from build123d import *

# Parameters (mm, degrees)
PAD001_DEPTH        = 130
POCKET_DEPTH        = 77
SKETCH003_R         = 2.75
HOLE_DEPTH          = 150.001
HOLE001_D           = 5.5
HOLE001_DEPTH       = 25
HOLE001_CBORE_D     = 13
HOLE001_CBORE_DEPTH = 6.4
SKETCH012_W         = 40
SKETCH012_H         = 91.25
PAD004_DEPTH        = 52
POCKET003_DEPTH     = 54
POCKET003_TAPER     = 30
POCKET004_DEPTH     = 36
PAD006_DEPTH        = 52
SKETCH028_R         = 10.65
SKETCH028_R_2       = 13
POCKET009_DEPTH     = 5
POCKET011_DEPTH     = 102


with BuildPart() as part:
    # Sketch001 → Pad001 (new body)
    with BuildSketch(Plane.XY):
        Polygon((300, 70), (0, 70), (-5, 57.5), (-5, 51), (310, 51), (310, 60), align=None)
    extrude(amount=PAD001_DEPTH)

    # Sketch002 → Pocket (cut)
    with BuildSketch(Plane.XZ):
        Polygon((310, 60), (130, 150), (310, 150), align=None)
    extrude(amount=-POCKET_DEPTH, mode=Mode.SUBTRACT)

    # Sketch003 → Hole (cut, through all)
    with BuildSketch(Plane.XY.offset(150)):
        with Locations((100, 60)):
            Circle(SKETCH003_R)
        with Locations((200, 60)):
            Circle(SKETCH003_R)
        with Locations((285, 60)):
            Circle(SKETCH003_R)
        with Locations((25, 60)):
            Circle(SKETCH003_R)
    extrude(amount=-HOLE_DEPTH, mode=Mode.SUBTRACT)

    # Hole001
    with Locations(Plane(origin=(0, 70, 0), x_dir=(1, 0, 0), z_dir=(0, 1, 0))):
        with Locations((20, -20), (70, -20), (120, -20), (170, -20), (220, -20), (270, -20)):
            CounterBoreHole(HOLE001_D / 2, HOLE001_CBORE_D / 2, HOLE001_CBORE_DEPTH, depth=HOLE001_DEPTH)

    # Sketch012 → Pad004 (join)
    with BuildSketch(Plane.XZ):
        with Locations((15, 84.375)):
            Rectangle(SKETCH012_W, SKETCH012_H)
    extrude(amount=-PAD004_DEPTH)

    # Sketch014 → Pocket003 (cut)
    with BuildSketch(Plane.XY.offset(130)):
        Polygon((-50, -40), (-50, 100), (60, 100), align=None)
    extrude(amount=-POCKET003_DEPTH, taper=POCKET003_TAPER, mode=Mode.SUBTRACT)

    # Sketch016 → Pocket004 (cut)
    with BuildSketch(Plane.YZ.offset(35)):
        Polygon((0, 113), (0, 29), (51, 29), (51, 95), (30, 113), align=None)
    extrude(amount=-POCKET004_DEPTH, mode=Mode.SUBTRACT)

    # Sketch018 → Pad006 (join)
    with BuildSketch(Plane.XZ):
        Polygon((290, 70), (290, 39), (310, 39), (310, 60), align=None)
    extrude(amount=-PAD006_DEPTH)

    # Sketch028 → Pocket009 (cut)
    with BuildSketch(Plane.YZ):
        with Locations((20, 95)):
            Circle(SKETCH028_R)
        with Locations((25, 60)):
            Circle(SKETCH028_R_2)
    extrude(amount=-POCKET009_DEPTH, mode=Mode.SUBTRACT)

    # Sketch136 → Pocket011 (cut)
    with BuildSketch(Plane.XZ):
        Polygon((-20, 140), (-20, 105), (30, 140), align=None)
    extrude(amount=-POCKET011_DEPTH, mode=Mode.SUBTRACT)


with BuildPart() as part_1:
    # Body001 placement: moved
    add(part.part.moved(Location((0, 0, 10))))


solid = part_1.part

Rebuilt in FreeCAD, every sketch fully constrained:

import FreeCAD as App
import Part
import Sketcher
Q = App.Units.Quantity


def add_polygon(sketch, points):
    """Adds a closed chain of lines whose ends are joined by coincident constraints."""
    first, n = sketch.GeometryCount, len(points)
    for a, b in zip(points, points[1:] + points[:1]):
        sketch.addGeometry(Part.LineSegment(App.Vector(*a, 0), App.Vector(*b, 0)), False)
    for i in range(n):
        sketch.addConstraint(Sketcher.Constraint("Coincident", first + i, 2, first + (i + 1) % n, 1))

doc = App.newDocument("Part")
params = doc.addObject("Spreadsheet::Sheet", "Params")
for row, (alias, value) in enumerate([
    ("sketch1_width", "300 mm"),
    ("sketch1_width2", "315 mm"),
    ("sketch1_height", "9 mm"),
    ("sketch1_height2", "6.5 mm"),
    ("pad1_length", "130 mm"),
    ("sketch2_width", "180 mm"),
    ("sketch2_height", "90 mm"),
    ("pocket1_length", "77 mm"),
    ("sketch3_diameter", "5.5 mm"),
    ("sketch4_diameter", "5.5 mm"),
    ("hole_diameter", "5.5 mm"),
    ("hole_depth", "25 mm"),
    ("hole_cbore_diameter", "13 mm"),
    ("hole_cbore_depth", "6.4 mm"),
    ("sketch5_width", "40 mm"),
    ("sketch5_height", "91.25 mm"),
    ("pad2_length", "52 mm"),
    ("sketch6_width", "110 mm"),
    ("sketch6_height", "140 mm"),
    ("pocket3_length", "54 mm"),
    ("pocket3_taper", "-30 deg"),
    ("sketch7_width", "51 mm"),
    ("sketch7_width2", "30 mm"),
    ("sketch7_height", "84 mm"),
    ("sketch7_height2", "66 mm"),
    ("pocket4_length", "36 mm"),
    ("sketch8_width", "20 mm"),
    ("sketch8_height", "31 mm"),
    ("sketch8_height2", "21 mm"),
    ("pad3_length", "52 mm"),
    ("sketch9_diameter", "26 mm"),
    ("sketch9_diameter2", "21.3 mm"),
    ("pocket5_length", "5 mm"),
    ("sketch10_width", "50 mm"),
    ("sketch10_height", "35 mm"),
    ("pocket6_length", "102 mm"),
], start=1):
    params.set(f"A{row}", alias)
    params.set(f"B{row}", "=" + value)
    params.setAlias(f"B{row}", alias)

body = doc.addObject("PartDesign::Body", "Body")

# Sketch on XY plane
sketch1 = body.newObject("Sketcher::SketchObject", "Sketch")
sketch1.AttachmentSupport = (doc.getObject("XY_Plane"), [""])
sketch1.MapMode = "FlatFace"
add_polygon(sketch1, [(300, 70), (0, 70), (-5, 58), (-5, 51), (310, 51), (310, 60)])  # lines 0-5
sketch1.addConstraint([
    Sketcher.Constraint("Horizontal", 0),
    Sketcher.Constraint("Vertical", 2),
    Sketcher.Constraint("Horizontal", 3),
    Sketcher.Constraint("Vertical", 4),
    Sketcher.Constraint("PointOnObject", 0, 2, -2),
    Sketcher.Constraint("DistanceX", 0, 2, 0, 1, Q("300 mm")),
    Sketcher.Constraint("DistanceX", 3, 1, 3, 2, Q("315 mm")),
    Sketcher.Constraint("DistanceY", 4, 1, 4, 2, Q("9 mm")),
    Sketcher.Constraint("Angle", 5, Q("135 deg")),
    Sketcher.Constraint("DistanceY", 2, 2, 2, 1, Q("6.5 mm")),
    Sketcher.Constraint("DistanceY", -1, 1, 0, 2, Q("70 mm")),
    Sketcher.Constraint("DistanceX", 1, 2, -1, 1, Q("5 mm")),
])
sketch1.setExpression("Constraints[11]", "Params.sketch1_width")
sketch1.setExpression("Constraints[12]", "Params.sketch1_width2")
sketch1.setExpression("Constraints[13]", "Params.sketch1_height")
sketch1.setExpression("Constraints[15]", "Params.sketch1_height2")
pad1 = body.newObject("PartDesign::Pad", "Pad")
pad1.Profile = sketch1
pad1.setExpression("Length", "Params.pad1_length")

# Sketch on XZ plane
sketch2 = body.newObject("Sketcher::SketchObject", "Sketch001")
sketch2.AttachmentSupport = (doc.getObject("XZ_Plane"), [""])
sketch2.MapMode = "FlatFace"
add_polygon(sketch2, [(130, 150), (310, 60), (310, 150)])  # lines 0-2
sketch2.addConstraint([
    Sketcher.Constraint("Vertical", 1),
    Sketcher.Constraint("Horizontal", 2),
    Sketcher.Constraint("DistanceX", 2, 2, 2, 1, Q("180 mm")),
    Sketcher.Constraint("DistanceY", 1, 1, 1, 2, Q("90 mm")),
    Sketcher.Constraint("DistanceX", -1, 1, 0, 2, Q("310 mm")),
    Sketcher.Constraint("DistanceY", -1, 1, 0, 2, Q("60 mm")),
])
sketch2.setExpression("Constraints[5]", "Params.sketch2_width")
sketch2.setExpression("Constraints[6]", "Params.sketch2_height")
pocket1 = body.newObject("PartDesign::Pocket", "Pocket")
pocket1.Profile = sketch2
pocket1.setExpression("Length", "Params.pocket1_length")

# Sketch on XY plane
sketch3 = body.newObject("Sketcher::SketchObject", "Sketch002")
sketch3.AttachmentSupport = (doc.getObject("XY_Plane"), [""])
sketch3.MapMode = "FlatFace"
sketch3.AttachmentOffset = App.Placement(App.Vector(0, 0, 150), App.Rotation())
sketch3.addGeometry([
    Part.Circle(App.Vector(100, 60, 0), App.Vector(0, 0, 1), 2.8),
    Part.Circle(App.Vector(200, 60, 0), App.Vector(0, 0, 1), 2.8),
    Part.Circle(App.Vector(285, 60, 0), App.Vector(0, 0, 1), 2.8),
    Part.Circle(App.Vector(25, 60, 0), App.Vector(0, 0, 1), 2.8),
], False)
sketch3.addConstraint([
    Sketcher.Constraint("Equal", 0, 1),
    Sketcher.Constraint("Equal", 1, 2),
    Sketcher.Constraint("Equal", 2, 3),
    Sketcher.Constraint("Horizontal", 0, 3, 1, 3),
    Sketcher.Constraint("Horizontal", 1, 3, 2, 3),
    Sketcher.Constraint("Horizontal", 2, 3, 3, 3),
    Sketcher.Constraint("Diameter", 0, Q("5.5 mm")),
    Sketcher.Constraint("DistanceX", -1, 1, 0, 3, Q("100 mm")),
    Sketcher.Constraint("DistanceY", -1, 1, 0, 3, Q("60 mm")),
    Sketcher.Constraint("DistanceX", -1, 1, 1, 3, Q("200 mm")),
    Sketcher.Constraint("DistanceX", -1, 1, 2, 3, Q("285 mm")),
    Sketcher.Constraint("DistanceX", -1, 1, 3, 3, Q("25 mm")),
])
sketch3.setExpression("Constraints[6]", "Params.sketch3_diameter")
pocket2 = body.newObject("PartDesign::Pocket", "Pocket001")
pocket2.Profile = sketch3
pocket2.Type = "ThroughAll"

# Sketch on XZ plane
sketch4 = body.newObject("Sketcher::SketchObject", "Sketch003")
sketch4.AttachmentSupport = (doc.getObject("XZ_Plane"), [""])
sketch4.MapMode = "FlatFace"
sketch4.AttachmentOffset = App.Placement(App.Vector(0, 0, -70), App.Rotation())
sketch4.addGeometry([
    Part.Circle(App.Vector(20, 20, 0), App.Vector(0, 0, 1), 2.8),  # 0
    Part.Circle(App.Vector(70, 20, 0), App.Vector(0, 0, 1), 2.8),  # 1
    Part.Circle(App.Vector(120, 20, 0), App.Vector(0, 0, 1), 2.8),  # 2
    Part.Circle(App.Vector(170, 20, 0), App.Vector(0, 0, 1), 2.8),  # 3
    Part.Circle(App.Vector(220, 20, 0), App.Vector(0, 0, 1), 2.8),  # 4
    Part.Circle(App.Vector(270, 20, 0), App.Vector(0, 0, 1), 2.8),  # 5
], False)
sketch4.addConstraint([
    Sketcher.Constraint("Equal", 0, 1),
    Sketcher.Constraint("Equal", 1, 2),
    Sketcher.Constraint("Equal", 2, 3),
    Sketcher.Constraint("Equal", 3, 4),
    Sketcher.Constraint("Equal", 4, 5),
    Sketcher.Constraint("Horizontal", 0, 3, 1, 3),
    Sketcher.Constraint("Horizontal", 1, 3, 2, 3),
    Sketcher.Constraint("Horizontal", 2, 3, 3, 3),
    Sketcher.Constraint("Horizontal", 3, 3, 4, 3),
    Sketcher.Constraint("Horizontal", 4, 3, 5, 3),
    Sketcher.Constraint("Diameter", 0, Q("5.5 mm")),
    Sketcher.Constraint("DistanceX", -1, 1, 0, 3, Q("20 mm")),
    Sketcher.Constraint("DistanceY", -1, 1, 0, 3, Q("20 mm")),
    Sketcher.Constraint("DistanceX", -1, 1, 1, 3, Q("70 mm")),
    Sketcher.Constraint("DistanceX", -1, 1, 2, 3, Q("120 mm")),
    Sketcher.Constraint("DistanceX", -1, 1, 3, 3, Q("170 mm")),
    Sketcher.Constraint("DistanceX", -1, 1, 4, 3, Q("220 mm")),
    Sketcher.Constraint("DistanceX", -1, 1, 5, 3, Q("270 mm")),
])
sketch4.setExpression("Constraints[10]", "Params.sketch4_diameter")
doc.recompute()
hole = body.newObject("PartDesign::Hole", "Hole")
hole.Profile = sketch4
hole.ThreadType = "None"
hole.setExpression("Diameter", "Params.hole_diameter")
hole.DepthType = "Dimension"
hole.setExpression("Depth", "Params.hole_depth")
hole.DrillPoint = "Flat"
hole.HoleCutType = "Counterbore"
hole.setExpression("HoleCutDiameter", "Params.hole_cbore_diameter")
hole.setExpression("HoleCutDepth", "Params.hole_cbore_depth")
hole.Reversed = True

# Sketch on XZ plane
sketch5 = body.newObject("Sketcher::SketchObject", "Sketch004")
sketch5.AttachmentSupport = (doc.getObject("XZ_Plane"), [""])
sketch5.MapMode = "FlatFace"
add_polygon(sketch5, [(-5, 130), (-5, 39), (35, 39), (35, 130)])  # lines 0-3
sketch5.addConstraint([
    Sketcher.Constraint("Vertical", 0),
    Sketcher.Constraint("Horizontal", 1),
    Sketcher.Constraint("Vertical", 2),
    Sketcher.Constraint("Horizontal", 3),
    Sketcher.Constraint("DistanceX", 1, 1, 1, 2, Q("40 mm")),
    Sketcher.Constraint("DistanceX", 0, 2, -1, 1, Q("5 mm")),
    Sketcher.Constraint("DistanceY", -1, 1, 2, 2, Q("130 mm")),
    Sketcher.Constraint("DistanceY", 0, 2, 0, 1, Q("91.25 mm")),
])
sketch5.setExpression("Constraints[8]", "Params.sketch5_width")
sketch5.setExpression("Constraints[11]", "Params.sketch5_height")
pad2 = body.newObject("PartDesign::Pad", "Pad001")
pad2.Profile = sketch5
pad2.setExpression("Length", "Params.pad2_length")
pad2.Reversed = True

# Sketch on XY plane
sketch6 = body.newObject("Sketcher::SketchObject", "Sketch005")
sketch6.AttachmentSupport = (doc.getObject("XY_Plane"), [""])
sketch6.MapMode = "FlatFace"
sketch6.AttachmentOffset = App.Placement(App.Vector(0, 0, 130), App.Rotation())
add_polygon(sketch6, [(-50, 100), (-50, -40), (60, 100)])  # lines 0-2
sketch6.addConstraint([
    Sketcher.Constraint("Vertical", 0),
    Sketcher.Constraint("Horizontal", 2),
    Sketcher.Constraint("DistanceX", 2, 2, 2, 1, Q("110 mm")),
    Sketcher.Constraint("DistanceY", 0, 2, 0, 1, Q("140 mm")),
    Sketcher.Constraint("DistanceX", 0, 2, -1, 1, Q("50 mm")),
    Sketcher.Constraint("DistanceY", 0, 2, -1, 1, Q("40 mm")),
])
sketch6.setExpression("Constraints[5]", "Params.sketch6_width")
sketch6.setExpression("Constraints[6]", "Params.sketch6_height")
pocket3 = body.newObject("PartDesign::Pocket", "Pocket002")
pocket3.Profile = sketch6
pocket3.setExpression("Length", "Params.pocket3_length")
pocket3.setExpression("TaperAngle", "Params.pocket3_taper")

# Sketch on YZ plane
sketch7 = body.newObject("Sketcher::SketchObject", "Sketch006")
sketch7.AttachmentSupport = (doc.getObject("YZ_Plane"), [""])
sketch7.MapMode = "FlatFace"
sketch7.AttachmentOffset = App.Placement(App.Vector(0, 0, 35), App.Rotation())
add_polygon(sketch7, [(0, 113), (0, 29), (51, 29), (51, 95), (30, 113)])  # lines 0-4
sketch7.addConstraint([
    Sketcher.Constraint("Vertical", 0),
    Sketcher.Constraint("Horizontal", 1),
    Sketcher.Constraint("Vertical", 2),
    Sketcher.Constraint("Horizontal", 4),
    Sketcher.Constraint("PointOnObject", 0, 2, -2),
    Sketcher.Constraint("DistanceX", 1, 1, 1, 2, Q("51 mm")),
    Sketcher.Constraint("DistanceX", 4, 2, 4, 1, Q("30 mm")),
    Sketcher.Constraint("DistanceY", 0, 2, 0, 1, Q("84 mm")),
    Sketcher.Constraint("DistanceY", 2, 1, 2, 2, Q("66 mm")),
    Sketcher.Constraint("DistanceY", -1, 1, 0, 2, Q("29 mm")),
])
sketch7.setExpression("Constraints[10]", "Params.sketch7_width")
sketch7.setExpression("Constraints[11]", "Params.sketch7_width2")
sketch7.setExpression("Constraints[12]", "Params.sketch7_height")
sketch7.setExpression("Constraints[13]", "Params.sketch7_height2")
pocket4 = body.newObject("PartDesign::Pocket", "Pocket003")
pocket4.Profile = sketch7
pocket4.setExpression("Length", "Params.pocket4_length")

# Sketch on XZ plane
sketch8 = body.newObject("Sketcher::SketchObject", "Sketch007")
sketch8.AttachmentSupport = (doc.getObject("XZ_Plane"), [""])
sketch8.MapMode = "FlatFace"
add_polygon(sketch8, [(290, 70), (290, 39), (310, 39), (310, 60)])  # lines 0-3
sketch8.addConstraint([
    Sketcher.Constraint("Vertical", 0),
    Sketcher.Constraint("Horizontal", 1),
    Sketcher.Constraint("Vertical", 2),
    Sketcher.Constraint("DistanceX", 1, 1, 1, 2, Q("20 mm")),
    Sketcher.Constraint("DistanceY", 0, 2, 0, 1, Q("31 mm")),
    Sketcher.Constraint("DistanceY", 2, 1, 2, 2, Q("21 mm")),
    Sketcher.Constraint("DistanceX", -1, 1, 0, 2, Q("290 mm")),
    Sketcher.Constraint("DistanceY", -1, 1, 0, 2, Q("39 mm")),
])
sketch8.setExpression("Constraints[7]", "Params.sketch8_width")
sketch8.setExpression("Constraints[8]", "Params.sketch8_height")
sketch8.setExpression("Constraints[9]", "Params.sketch8_height2")
pad3 = body.newObject("PartDesign::Pad", "Pad002")
pad3.Profile = sketch8
pad3.setExpression("Length", "Params.pad3_length")
pad3.Reversed = True

# Sketch on YZ plane
sketch9 = body.newObject("Sketcher::SketchObject", "Sketch008")
sketch9.AttachmentSupport = (doc.getObject("YZ_Plane"), [""])
sketch9.MapMode = "FlatFace"
sketch9.addGeometry([
    Part.Circle(App.Vector(20, 95, 0), App.Vector(0, 0, 1), 11),
    Part.Circle(App.Vector(25, 60, 0), App.Vector(0, 0, 1), 13),
], False)
sketch9.addConstraint([
    Sketcher.Constraint("Diameter", 1, Q("26 mm")),
    Sketcher.Constraint("Diameter", 0, Q("21.3 mm")),
    Sketcher.Constraint("DistanceX", -1, 1, 0, 3, Q("20 mm")),
    Sketcher.Constraint("DistanceY", -1, 1, 0, 3, Q("95 mm")),
    Sketcher.Constraint("DistanceX", -1, 1, 1, 3, Q("25 mm")),
    Sketcher.Constraint("DistanceY", -1, 1, 1, 3, Q("60 mm")),
])
sketch9.setExpression("Constraints[0]", "Params.sketch9_diameter")
sketch9.setExpression("Constraints[1]", "Params.sketch9_diameter2")
pocket5 = body.newObject("PartDesign::Pocket", "Pocket004")
pocket5.Profile = sketch9
pocket5.setExpression("Length", "Params.pocket5_length")

# Sketch on XZ plane
sketch10 = body.newObject("Sketcher::SketchObject", "Sketch009")
sketch10.AttachmentSupport = (doc.getObject("XZ_Plane"), [""])
sketch10.MapMode = "FlatFace"
add_polygon(sketch10, [(-20, 140), (-20, 105), (30, 140)])  # lines 0-2
sketch10.addConstraint([
    Sketcher.Constraint("Vertical", 0),
    Sketcher.Constraint("Horizontal", 2),
    Sketcher.Constraint("DistanceX", 2, 2, 2, 1, Q("50 mm")),
    Sketcher.Constraint("DistanceY", 0, 2, 0, 1, Q("35 mm")),
    Sketcher.Constraint("DistanceX", 0, 2, -1, 1, Q("20 mm")),
    Sketcher.Constraint("DistanceY", -1, 1, 0, 2, Q("105 mm")),
])
sketch10.setExpression("Constraints[5]", "Params.sketch10_width")
sketch10.setExpression("Constraints[6]", "Params.sketch10_height")
pocket6 = body.newObject("PartDesign::Pocket", "Pocket005")
pocket6.Profile = sketch10
pocket6.setExpression("Length", "Params.pocket6_length")
body2 = doc.addObject("PartDesign::Body", "Body001")
doc.recompute()

body.Placement = App.Placement(App.Vector(0, 0, 10), App.Rotation(App.Vector(0, 0, 1), 0))
boolean = body2.newObject("PartDesign::Boolean", "Boolean")
boolean.Type = "Fuse"
boolean.addObjects([body])

doc.recompute()
